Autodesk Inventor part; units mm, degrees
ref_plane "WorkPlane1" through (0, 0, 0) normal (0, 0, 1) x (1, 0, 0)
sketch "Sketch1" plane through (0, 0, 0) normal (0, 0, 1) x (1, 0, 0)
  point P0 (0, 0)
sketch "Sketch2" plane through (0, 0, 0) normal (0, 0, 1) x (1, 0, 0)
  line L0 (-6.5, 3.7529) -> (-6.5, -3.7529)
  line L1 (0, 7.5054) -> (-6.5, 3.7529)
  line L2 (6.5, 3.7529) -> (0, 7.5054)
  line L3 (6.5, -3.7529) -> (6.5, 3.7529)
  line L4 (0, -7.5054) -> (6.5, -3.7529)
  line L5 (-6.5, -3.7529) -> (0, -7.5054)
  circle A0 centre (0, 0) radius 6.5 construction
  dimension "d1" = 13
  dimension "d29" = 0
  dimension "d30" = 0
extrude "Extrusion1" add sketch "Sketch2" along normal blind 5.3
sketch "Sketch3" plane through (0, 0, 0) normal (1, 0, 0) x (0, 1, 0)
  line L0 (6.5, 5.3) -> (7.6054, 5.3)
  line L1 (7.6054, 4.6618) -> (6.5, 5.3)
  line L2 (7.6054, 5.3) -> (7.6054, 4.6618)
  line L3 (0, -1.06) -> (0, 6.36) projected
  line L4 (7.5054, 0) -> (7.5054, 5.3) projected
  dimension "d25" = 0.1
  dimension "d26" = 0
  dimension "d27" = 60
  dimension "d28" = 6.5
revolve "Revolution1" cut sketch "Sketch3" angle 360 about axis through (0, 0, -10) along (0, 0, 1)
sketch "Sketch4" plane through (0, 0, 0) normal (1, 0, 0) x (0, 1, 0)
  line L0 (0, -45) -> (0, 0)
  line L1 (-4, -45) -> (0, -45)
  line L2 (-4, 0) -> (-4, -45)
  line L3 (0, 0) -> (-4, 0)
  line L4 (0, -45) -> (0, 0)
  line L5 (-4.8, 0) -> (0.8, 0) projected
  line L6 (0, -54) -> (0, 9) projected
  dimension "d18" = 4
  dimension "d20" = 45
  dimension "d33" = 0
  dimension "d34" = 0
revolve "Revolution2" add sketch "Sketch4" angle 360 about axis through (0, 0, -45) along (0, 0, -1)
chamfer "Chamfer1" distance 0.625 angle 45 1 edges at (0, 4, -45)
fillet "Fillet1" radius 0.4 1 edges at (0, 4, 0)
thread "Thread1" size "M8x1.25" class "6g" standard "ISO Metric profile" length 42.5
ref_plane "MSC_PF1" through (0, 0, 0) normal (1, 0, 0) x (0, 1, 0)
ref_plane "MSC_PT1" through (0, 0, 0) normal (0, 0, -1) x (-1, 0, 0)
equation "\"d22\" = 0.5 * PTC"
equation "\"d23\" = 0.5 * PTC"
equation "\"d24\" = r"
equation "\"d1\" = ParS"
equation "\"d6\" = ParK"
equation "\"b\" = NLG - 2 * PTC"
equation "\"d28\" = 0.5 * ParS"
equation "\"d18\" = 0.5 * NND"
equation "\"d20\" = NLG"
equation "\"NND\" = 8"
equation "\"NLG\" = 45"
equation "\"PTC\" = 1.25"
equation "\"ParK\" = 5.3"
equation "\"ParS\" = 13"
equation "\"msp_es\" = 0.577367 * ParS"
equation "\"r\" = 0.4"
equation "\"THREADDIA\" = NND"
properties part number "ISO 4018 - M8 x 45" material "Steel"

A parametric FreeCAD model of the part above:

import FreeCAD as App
import Part
import Sketcher

V = App.Vector
Q = App.Units.Quantity


def edges_at(feature, points):
    """Names of the edges that pass closest to the given points."""
    edges = feature.Shape.Edges
    near = lambda p: min(range(len(edges)), key=lambda i: edges[i].distToShape(Part.Vertex(*p))[0])
    return sorted({f"Edge{near(p) + 1}" for p in points})


def add_polygon(sketch, points):
    """Adds a closed chain of lines whose ends are joined by coincident constraints."""
    first, n = sketch.GeometryCount, len(points)
    for a, b in zip(points, points[1:] + points[:1]):
        sketch.addGeometry(Part.LineSegment(App.Vector(*a, 0), App.Vector(*b, 0)), False)
    for i in range(n):
        sketch.addConstraint(Sketcher.Constraint("Coincident", first + i, 2, first + (i + 1) % n, 1))

doc = App.newDocument("Part")
body = doc.addObject("PartDesign::Body", "Body")

# Sketch on XY plane
sketch1 = body.newObject("Sketcher::SketchObject", "Sketch")
sketch1.AttachmentSupport = (doc.getObject("XY_Plane"), [""])
sketch1.MapMode = "FlatFace"
add_polygon(sketch1, [(0, 7.5054), (-6.5, 3.7529), (-6.5, -3.7529), (0, -7.5054), (6.5, -3.7529), (6.5, 3.7529)])  # lines 0-5
sketch1.addConstraint(Sketcher.Constraint("Vertical", 1))
sketch1.addConstraint(Sketcher.Constraint("Vertical", 4))
sketch1.addConstraint(Sketcher.Constraint("Symmetric", 0, 2, 3, 2, -1, 1))
sketch1.addConstraint(Sketcher.Constraint("Symmetric", 2, 2, 5, 2, -1, 1))
sketch1.addConstraint(Sketcher.Constraint("PointOnObject", 2, 2, -2))
sketch1.addConstraint(Sketcher.Constraint("Parallel", 2, 5))
sketch1.addConstraint(Sketcher.Constraint("Horizontal", 1, 2, 3, 2))
sketch1.addConstraint(Sketcher.Constraint("DistanceX", 1, 2, 3, 2, Q("13 mm")))
sketch1.addConstraint(Sketcher.Constraint("DistanceY", 1, 2, 1, 1, Q("7.5058 mm")))
sketch1.addConstraint(Sketcher.Constraint("Distance", 0, Q("7.5054 mm")))
pad1 = body.newObject("PartDesign::Pad", "Pad")
pad1.Profile = sketch1
pad1.Length = 5.3

# Sketch on YZ plane
sketch2 = body.newObject("Sketcher::SketchObject", "Sketch001")
sketch2.AttachmentSupport = (doc.getObject("YZ_Plane"), [""])
sketch2.MapMode = "FlatFace"
add_polygon(sketch2, [(6.5, 5.3), (7.6054, 4.6618), (7.6054, 5.3)])  # lines 0-2
sketch2.addConstraint(Sketcher.Constraint("Vertical", 1))
sketch2.addConstraint(Sketcher.Constraint("Horizontal", 2))
sketch2.addConstraint(Sketcher.Constraint("DistanceX", -1, 1, 2, 2, Q("6.5 mm")))
sketch2.addConstraint(Sketcher.Constraint("Angle", 0, Q("-30 deg")))
sketch2.addConstraint(Sketcher.Constraint("DistanceY", -1, 1, 1, 2, Q("5.3 mm")))
sketch2.addConstraint(Sketcher.Constraint("DistanceX", 2, 2, 2, 1, Q("1.1054 mm")))
groove = body.newObject("PartDesign::Groove", "Groove")
groove.Profile = sketch2
groove.ReferenceAxis = (sketch2, ["V_Axis"])
groove.Angle = 360

# Sketch on YZ plane
sketch3 = body.newObject("Sketcher::SketchObject", "Sketch002")
sketch3.AttachmentSupport = (doc.getObject("YZ_Plane"), [""])
sketch3.MapMode = "FlatFace"
add_polygon(sketch3, [(-4, -45), (0, -45), (0, 0), (-4, 0)])  # lines 0-3
sketch3.addConstraint(Sketcher.Constraint("Horizontal", 0))
sketch3.addConstraint(Sketcher.Constraint("Vertical", 1))
sketch3.addConstraint(Sketcher.Constraint("Horizontal", 2))
sketch3.addConstraint(Sketcher.Constraint("Vertical", 3))
sketch3.addConstraint(Sketcher.Constraint("Coincident", 1, 2, -1, 1))
sketch3.addConstraint(Sketcher.Constraint("DistanceX", 0, 1, 0, 2, Q("4 mm")))
sketch3.addConstraint(Sketcher.Constraint("DistanceY", 1, 1, 1, 2, Q("45 mm")))
revolution = body.newObject("PartDesign::Revolution", "Revolution")
revolution.Profile = sketch3
revolution.ReferenceAxis = (sketch3, ["V_Axis"])
revolution.Angle = 360
doc.recompute()

chamfer = body.newObject("PartDesign::Chamfer", "Chamfer")
chamfer.Base = (revolution, edges_at(revolution, [(0, 4, -45)]))
chamfer.Size = 0.625
doc.recompute()

fillet = body.newObject("PartDesign::Fillet", "Fillet")
fillet.Base = (chamfer, edges_at(chamfer, [(0, 4, 0)]))
fillet.Radius = 0.4

doc.recompute()
